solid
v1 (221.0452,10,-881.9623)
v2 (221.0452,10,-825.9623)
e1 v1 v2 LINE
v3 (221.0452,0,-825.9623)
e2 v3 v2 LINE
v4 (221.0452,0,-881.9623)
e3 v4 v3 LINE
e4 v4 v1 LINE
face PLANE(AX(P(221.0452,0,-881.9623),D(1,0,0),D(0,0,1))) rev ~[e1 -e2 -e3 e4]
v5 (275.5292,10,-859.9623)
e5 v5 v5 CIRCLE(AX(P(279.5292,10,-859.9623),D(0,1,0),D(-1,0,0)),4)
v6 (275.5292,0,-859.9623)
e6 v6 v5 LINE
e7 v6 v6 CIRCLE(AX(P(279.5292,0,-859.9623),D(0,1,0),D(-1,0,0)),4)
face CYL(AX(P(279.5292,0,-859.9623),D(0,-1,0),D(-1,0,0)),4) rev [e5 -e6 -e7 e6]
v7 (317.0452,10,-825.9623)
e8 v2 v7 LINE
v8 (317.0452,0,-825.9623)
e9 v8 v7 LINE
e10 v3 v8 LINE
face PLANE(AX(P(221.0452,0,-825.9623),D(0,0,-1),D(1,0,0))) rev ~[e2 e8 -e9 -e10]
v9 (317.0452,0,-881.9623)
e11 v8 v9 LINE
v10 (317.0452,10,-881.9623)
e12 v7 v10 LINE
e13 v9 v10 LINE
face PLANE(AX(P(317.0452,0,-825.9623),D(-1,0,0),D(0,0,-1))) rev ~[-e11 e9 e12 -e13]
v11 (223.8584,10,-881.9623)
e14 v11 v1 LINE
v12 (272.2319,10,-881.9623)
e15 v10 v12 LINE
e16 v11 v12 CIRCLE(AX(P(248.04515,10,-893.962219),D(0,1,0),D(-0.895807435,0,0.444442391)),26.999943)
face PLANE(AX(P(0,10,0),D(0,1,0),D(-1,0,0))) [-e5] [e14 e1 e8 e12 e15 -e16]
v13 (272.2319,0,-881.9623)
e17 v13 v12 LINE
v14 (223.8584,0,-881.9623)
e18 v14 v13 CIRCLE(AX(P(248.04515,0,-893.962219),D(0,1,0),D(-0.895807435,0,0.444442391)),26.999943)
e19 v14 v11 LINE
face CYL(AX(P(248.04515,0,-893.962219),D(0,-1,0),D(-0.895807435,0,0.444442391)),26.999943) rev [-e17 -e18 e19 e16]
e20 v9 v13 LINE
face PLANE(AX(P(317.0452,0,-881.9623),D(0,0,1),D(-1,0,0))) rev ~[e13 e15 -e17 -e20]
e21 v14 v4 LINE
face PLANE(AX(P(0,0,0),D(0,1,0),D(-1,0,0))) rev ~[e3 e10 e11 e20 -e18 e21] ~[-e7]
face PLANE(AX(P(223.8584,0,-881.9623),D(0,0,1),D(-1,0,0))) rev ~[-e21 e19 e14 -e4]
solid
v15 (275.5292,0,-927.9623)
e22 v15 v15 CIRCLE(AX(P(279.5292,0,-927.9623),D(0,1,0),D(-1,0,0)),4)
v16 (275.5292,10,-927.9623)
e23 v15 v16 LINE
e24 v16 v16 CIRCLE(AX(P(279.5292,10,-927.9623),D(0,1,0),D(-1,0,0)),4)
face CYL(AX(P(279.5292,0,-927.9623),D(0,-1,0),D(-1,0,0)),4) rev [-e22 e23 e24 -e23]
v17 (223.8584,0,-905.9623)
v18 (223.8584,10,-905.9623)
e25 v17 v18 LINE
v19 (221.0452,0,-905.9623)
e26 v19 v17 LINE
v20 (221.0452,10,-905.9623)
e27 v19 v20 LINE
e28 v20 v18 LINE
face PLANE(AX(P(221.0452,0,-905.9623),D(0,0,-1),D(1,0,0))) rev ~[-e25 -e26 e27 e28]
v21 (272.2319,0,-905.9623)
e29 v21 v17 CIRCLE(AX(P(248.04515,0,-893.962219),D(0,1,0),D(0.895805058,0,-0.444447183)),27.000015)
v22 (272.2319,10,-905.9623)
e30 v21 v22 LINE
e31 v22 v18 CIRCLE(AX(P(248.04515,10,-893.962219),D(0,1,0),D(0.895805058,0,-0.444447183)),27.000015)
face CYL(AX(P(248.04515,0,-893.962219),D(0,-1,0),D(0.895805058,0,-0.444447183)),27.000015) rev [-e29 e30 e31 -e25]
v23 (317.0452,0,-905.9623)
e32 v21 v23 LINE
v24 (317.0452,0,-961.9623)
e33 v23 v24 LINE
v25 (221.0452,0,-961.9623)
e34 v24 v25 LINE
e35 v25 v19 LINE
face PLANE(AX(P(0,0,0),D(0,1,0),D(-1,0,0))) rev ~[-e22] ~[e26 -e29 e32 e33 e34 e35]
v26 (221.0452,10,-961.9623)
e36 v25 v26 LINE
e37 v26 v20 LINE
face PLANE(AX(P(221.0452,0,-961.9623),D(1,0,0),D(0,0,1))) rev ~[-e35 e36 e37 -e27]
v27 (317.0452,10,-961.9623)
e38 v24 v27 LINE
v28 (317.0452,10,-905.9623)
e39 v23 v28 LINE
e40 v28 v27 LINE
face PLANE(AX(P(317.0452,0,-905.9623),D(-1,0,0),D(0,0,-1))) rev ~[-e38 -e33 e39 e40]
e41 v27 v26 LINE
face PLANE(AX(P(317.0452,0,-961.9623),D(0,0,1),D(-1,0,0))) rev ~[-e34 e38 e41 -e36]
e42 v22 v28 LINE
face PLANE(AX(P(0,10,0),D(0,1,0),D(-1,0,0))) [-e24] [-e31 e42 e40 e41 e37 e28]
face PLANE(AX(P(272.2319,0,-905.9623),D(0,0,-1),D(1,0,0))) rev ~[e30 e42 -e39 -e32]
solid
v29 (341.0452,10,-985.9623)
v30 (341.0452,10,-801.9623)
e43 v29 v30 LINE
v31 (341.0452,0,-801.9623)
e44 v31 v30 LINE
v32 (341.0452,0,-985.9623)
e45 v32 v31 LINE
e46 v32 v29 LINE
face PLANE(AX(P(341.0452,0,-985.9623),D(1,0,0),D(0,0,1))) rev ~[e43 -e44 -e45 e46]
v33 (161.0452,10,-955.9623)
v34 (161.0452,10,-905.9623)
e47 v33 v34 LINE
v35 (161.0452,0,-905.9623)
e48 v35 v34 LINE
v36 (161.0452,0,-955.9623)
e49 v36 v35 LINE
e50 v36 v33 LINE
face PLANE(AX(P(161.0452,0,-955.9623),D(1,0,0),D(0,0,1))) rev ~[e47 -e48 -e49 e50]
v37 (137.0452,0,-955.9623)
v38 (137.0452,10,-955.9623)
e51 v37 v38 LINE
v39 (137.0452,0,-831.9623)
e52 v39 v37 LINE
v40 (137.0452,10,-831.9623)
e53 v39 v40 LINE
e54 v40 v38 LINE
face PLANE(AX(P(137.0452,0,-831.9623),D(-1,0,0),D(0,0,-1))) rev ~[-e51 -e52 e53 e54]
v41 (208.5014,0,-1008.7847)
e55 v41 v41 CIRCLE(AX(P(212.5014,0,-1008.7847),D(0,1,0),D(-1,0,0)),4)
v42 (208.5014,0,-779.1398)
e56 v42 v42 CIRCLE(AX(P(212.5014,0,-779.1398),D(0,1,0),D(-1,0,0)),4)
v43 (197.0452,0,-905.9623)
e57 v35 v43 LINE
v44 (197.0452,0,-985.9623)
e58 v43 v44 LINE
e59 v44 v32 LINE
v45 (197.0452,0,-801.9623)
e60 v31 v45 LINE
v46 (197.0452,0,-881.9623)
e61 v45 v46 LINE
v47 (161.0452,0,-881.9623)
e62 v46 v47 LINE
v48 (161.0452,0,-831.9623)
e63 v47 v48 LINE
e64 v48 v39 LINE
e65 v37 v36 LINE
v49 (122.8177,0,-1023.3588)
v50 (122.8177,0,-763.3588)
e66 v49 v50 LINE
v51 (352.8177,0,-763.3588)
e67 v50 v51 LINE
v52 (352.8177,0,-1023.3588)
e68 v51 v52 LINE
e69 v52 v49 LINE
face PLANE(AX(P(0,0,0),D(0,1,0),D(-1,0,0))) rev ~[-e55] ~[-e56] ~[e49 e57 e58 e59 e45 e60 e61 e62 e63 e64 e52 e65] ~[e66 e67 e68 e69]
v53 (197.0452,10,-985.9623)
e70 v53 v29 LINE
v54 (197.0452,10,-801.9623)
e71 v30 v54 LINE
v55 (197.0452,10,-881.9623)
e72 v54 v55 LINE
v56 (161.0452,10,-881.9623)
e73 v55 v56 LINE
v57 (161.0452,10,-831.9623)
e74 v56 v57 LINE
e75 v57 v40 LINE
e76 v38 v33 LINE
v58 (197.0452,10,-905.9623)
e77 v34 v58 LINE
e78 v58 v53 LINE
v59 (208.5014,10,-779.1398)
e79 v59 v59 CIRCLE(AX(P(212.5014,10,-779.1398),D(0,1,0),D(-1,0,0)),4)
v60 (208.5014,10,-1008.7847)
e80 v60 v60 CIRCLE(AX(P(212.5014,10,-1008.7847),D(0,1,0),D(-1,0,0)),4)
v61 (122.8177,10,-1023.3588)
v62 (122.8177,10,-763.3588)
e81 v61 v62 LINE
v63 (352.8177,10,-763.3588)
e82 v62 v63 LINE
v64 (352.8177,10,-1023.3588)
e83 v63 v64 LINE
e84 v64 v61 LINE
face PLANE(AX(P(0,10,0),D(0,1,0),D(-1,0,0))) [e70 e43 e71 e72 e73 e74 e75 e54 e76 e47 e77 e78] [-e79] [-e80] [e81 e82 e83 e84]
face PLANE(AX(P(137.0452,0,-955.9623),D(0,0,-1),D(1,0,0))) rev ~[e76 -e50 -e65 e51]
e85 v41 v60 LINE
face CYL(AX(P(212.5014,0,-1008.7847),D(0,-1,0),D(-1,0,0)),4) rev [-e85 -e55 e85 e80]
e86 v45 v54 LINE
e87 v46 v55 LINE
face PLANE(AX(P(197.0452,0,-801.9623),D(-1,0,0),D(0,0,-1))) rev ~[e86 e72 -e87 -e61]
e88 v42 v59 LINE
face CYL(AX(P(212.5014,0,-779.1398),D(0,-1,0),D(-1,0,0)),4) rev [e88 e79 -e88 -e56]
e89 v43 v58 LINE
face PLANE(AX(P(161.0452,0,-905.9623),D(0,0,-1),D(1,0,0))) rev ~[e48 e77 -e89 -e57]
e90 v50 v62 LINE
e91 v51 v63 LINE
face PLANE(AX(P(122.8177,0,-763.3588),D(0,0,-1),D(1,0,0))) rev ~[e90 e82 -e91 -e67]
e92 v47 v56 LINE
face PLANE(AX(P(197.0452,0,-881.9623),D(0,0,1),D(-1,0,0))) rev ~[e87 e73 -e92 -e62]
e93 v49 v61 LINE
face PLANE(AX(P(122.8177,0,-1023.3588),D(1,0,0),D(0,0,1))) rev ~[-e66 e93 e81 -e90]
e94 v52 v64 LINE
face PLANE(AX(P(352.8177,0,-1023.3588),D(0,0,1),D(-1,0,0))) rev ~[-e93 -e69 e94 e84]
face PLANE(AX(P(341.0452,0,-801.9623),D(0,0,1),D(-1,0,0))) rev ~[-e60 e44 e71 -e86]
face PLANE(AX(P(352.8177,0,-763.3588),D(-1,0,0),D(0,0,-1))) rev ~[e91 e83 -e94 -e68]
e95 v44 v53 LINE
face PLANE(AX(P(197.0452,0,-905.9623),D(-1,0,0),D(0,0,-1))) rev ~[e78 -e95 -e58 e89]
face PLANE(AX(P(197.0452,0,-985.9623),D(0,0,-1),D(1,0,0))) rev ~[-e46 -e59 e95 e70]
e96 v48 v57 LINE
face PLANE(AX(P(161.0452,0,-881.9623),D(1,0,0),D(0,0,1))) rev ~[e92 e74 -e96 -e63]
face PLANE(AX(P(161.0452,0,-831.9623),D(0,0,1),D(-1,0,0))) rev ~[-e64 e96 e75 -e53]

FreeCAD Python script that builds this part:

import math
import FreeCAD as App
import Part
import Sketcher
from FreeCAD import Vector
Q = App.Units.Quantity


def add_polygon(sketch, points):
    """Adds a closed chain of lines whose ends are joined by coincident constraints."""
    first, n = sketch.GeometryCount, len(points)
    for a, b in zip(points, points[1:] + points[:1]):
        sketch.addGeometry(Part.LineSegment(App.Vector(*a, 0), App.Vector(*b, 0)), False)
    for i in range(n):
        sketch.addConstraint(Sketcher.Constraint("Coincident", first + i, 2, first + (i + 1) % n, 1))

doc = App.newDocument("Part")
body = doc.addObject("PartDesign::Body", "Body")
body.AllowCompound = True

sketch1 = body.newObject("Sketcher::SketchObject", "Sketch")
sketch1.AttachmentSupport = (doc.getObject("XZ_Plane"), [""])
sketch1.MapMode = "FlatFace"
add_polygon(sketch1, [(122.8, -763.4), (352.8, -763.4), (352.8, -1023.4), (122.8, -1023.4)])
add_polygon(sketch1, [(341, -802), (197, -802), (197, -882), (161, -882), (161, -832), (137, -832), (137, -956), (161, -956), (161, -906), (197, -906), (197, -986), (341, -986)])
sketch1.addGeometry(Part.Circle(Vector(212.5, -1008.8, 0), Vector(0, 0, 1), 4), False)
sketch1.addGeometry(Part.Circle(Vector(212.5, -779.1, 0), Vector(0, 0, 1), 4), False)
sketch1.addGeometry(Part.ArcOfCircle(Part.Circle(Vector(248, -894, 0), Vector(0, 0, 1), 27), math.radians(-154), math.radians(-26)), False)
sketch1.addGeometry(Part.LineSegment(Vector(272.2, -906, 0), Vector(317, -906, 0)), False)
sketch1.addGeometry(Part.LineSegment(Vector(317, -906, 0), Vector(317, -962, 0)), False)
sketch1.addGeometry(Part.LineSegment(Vector(317, -962, 0), Vector(221, -962, 0)), False)
sketch1.addGeometry(Part.LineSegment(Vector(221, -962, 0), Vector(221, -906, 0)), False)
sketch1.addGeometry(Part.LineSegment(Vector(221, -906, 0), Vector(223.9, -906, 0)), False)
sketch1.addGeometry(Part.Circle(Vector(279.5, -928, 0), Vector(0, 0, 1), 4), False)
sketch1.addGeometry(Part.ArcOfCircle(Part.Circle(Vector(248, -894, 0), Vector(0, 0, 1), 27), math.radians(26), math.radians(154)), False)
sketch1.addGeometry(Part.LineSegment(Vector(223.9, -882, 0), Vector(221, -882, 0)), False)
sketch1.addGeometry(Part.LineSegment(Vector(221, -882, 0), Vector(221, -826, 0)), False)
sketch1.addGeometry(Part.LineSegment(Vector(221, -826, 0), Vector(317, -826, 0)), False)
sketch1.addGeometry(Part.LineSegment(Vector(317, -826, 0), Vector(317, -882, 0)), False)
sketch1.addGeometry(Part.LineSegment(Vector(317, -882, 0), Vector(272.2, -882, 0)), False)
sketch1.addGeometry(Part.Circle(Vector(279.5, -860, 0), Vector(0, 0, 1), 4), False)
sketch1.addConstraint(Sketcher.Constraint("Coincident", 18, 2, 19, 1))
sketch1.addConstraint(Sketcher.Constraint("Coincident", 19, 2, 20, 1))
sketch1.addConstraint(Sketcher.Constraint("Coincident", 20, 2, 21, 1))
sketch1.addConstraint(Sketcher.Constraint("Coincident", 21, 2, 22, 1))
sketch1.addConstraint(Sketcher.Constraint("Coincident", 22, 2, 23, 1))
sketch1.addConstraint(Sketcher.Constraint("Coincident", 23, 2, 18, 1))
sketch1.addConstraint(Sketcher.Constraint("Coincident", 25, 2, 26, 1))
sketch1.addConstraint(Sketcher.Constraint("Coincident", 26, 2, 27, 1))
sketch1.addConstraint(Sketcher.Constraint("Coincident", 27, 2, 28, 1))
sketch1.addConstraint(Sketcher.Constraint("Coincident", 28, 2, 29, 1))
sketch1.addConstraint(Sketcher.Constraint("Coincident", 29, 2, 30, 1))
sketch1.addConstraint(Sketcher.Constraint("Coincident", 30, 2, 25, 1))
sketch1.addConstraint(Sketcher.Constraint("Horizontal", 0))
sketch1.addConstraint(Sketcher.Constraint("Vertical", 1))
sketch1.addConstraint(Sketcher.Constraint("Horizontal", 2))
sketch1.addConstraint(Sketcher.Constraint("Vertical", 3))
sketch1.addConstraint(Sketcher.Constraint("Horizontal", 4))
sketch1.addConstraint(Sketcher.Constraint("Vertical", 5))
sketch1.addConstraint(Sketcher.Constraint("Horizontal", 6))
sketch1.addConstraint(Sketcher.Constraint("Vertical", 7))
sketch1.addConstraint(Sketcher.Constraint("Horizontal", 8))
sketch1.addConstraint(Sketcher.Constraint("Vertical", 9))
sketch1.addConstraint(Sketcher.Constraint("Horizontal", 10))
sketch1.addConstraint(Sketcher.Constraint("Vertical", 11))
sketch1.addConstraint(Sketcher.Constraint("Horizontal", 12))
sketch1.addConstraint(Sketcher.Constraint("Vertical", 13))
sketch1.addConstraint(Sketcher.Constraint("Horizontal", 14))
sketch1.addConstraint(Sketcher.Constraint("Vertical", 15))
sketch1.addConstraint(Sketcher.Constraint("Horizontal", 19))
sketch1.addConstraint(Sketcher.Constraint("Vertical", 20))
sketch1.addConstraint(Sketcher.Constraint("Horizontal", 21))
sketch1.addConstraint(Sketcher.Constraint("Vertical", 22))
sketch1.addConstraint(Sketcher.Constraint("Horizontal", 23))
sketch1.addConstraint(Sketcher.Constraint("Horizontal", 26))
sketch1.addConstraint(Sketcher.Constraint("Vertical", 27))
sketch1.addConstraint(Sketcher.Constraint("Horizontal", 28))
sketch1.addConstraint(Sketcher.Constraint("Vertical", 29))
sketch1.addConstraint(Sketcher.Constraint("Horizontal", 30))
sketch1.addConstraint(Sketcher.Constraint("Coincident", 25, 3, 18, 3))
sketch1.addConstraint(Sketcher.Constraint("Equal", 16, 17))
sketch1.addConstraint(Sketcher.Constraint("Equal", 17, 24))
sketch1.addConstraint(Sketcher.Constraint("Equal", 18, 25))
sketch1.addConstraint(Sketcher.Constraint("Equal", 24, 31))
sketch1.addConstraint(Sketcher.Constraint("Horizontal", 12, 2, 18, 2))
sketch1.addConstraint(Sketcher.Constraint("Horizontal", 19, 2, 22, 2))
sketch1.addConstraint(Sketcher.Constraint("Horizontal", 6, 2, 25, 2))
sketch1.addConstraint(Sketcher.Constraint("Horizontal", 26, 2, 29, 2))
sketch1.addConstraint(Sketcher.Constraint("Vertical", 16, 3, 17, 3))
sketch1.addConstraint(Sketcher.Constraint("Vertical", 24, 3, 31, 3))
sketch1.addConstraint(Sketcher.Constraint("Vertical", 7, 2, 10, 2))
sketch1.addConstraint(Sketcher.Constraint("Vertical", 5, 2, 12, 2))
sketch1.addConstraint(Sketcher.Constraint("Vertical", 23, 2, 25, 2))
sketch1.addConstraint(Sketcher.Constraint("Vertical", 22, 2, 26, 2))
sketch1.addConstraint(Sketcher.Constraint("Vertical", 20, 2, 28, 2))
sketch1.addConstraint(Sketcher.Constraint("Equal", 7, 11))
sketch1.addConstraint(Sketcher.Constraint("Equal", 5, 13))
sketch1.addConstraint(Sketcher.Constraint("Equal", 22, 27))
sketch1.addConstraint(Sketcher.Constraint("Diameter", 16, Q("8 mm")))
sketch1.addConstraint(Sketcher.Constraint("Radius", 18, Q("27 mm")))
sketch1.addConstraint(Sketcher.Constraint("DistanceX", 0, 1, 0, 2, Q("230 mm")))
sketch1.addConstraint(Sketcher.Constraint("DistanceX", 4, 2, 4, 1, Q("144 mm")))
sketch1.addConstraint(Sketcher.Constraint("DistanceX", 6, 2, 6, 1, Q("36 mm")))
sketch1.addConstraint(Sketcher.Constraint("DistanceX", 8, 2, 8, 1, Q("24 mm")))
sketch1.addConstraint(Sketcher.Constraint("DistanceX", 21, 2, 21, 1, Q("96 mm")))
sketch1.addConstraint(Sketcher.Constraint("DistanceY", 1, 2, 1, 1, Q("260 mm")))
sketch1.addConstraint(Sketcher.Constraint("DistanceY", 5, 2, 5, 1, Q("80 mm")))
sketch1.addConstraint(Sketcher.Constraint("DistanceY", 7, 1, 7, 2, Q("50 mm")))
sketch1.addConstraint(Sketcher.Constraint("DistanceY", 9, 2, 9, 1, Q("124 mm")))
sketch1.addConstraint(Sketcher.Constraint("DistanceY", 20, 2, 20, 1, Q("56 mm")))
sketch1.addConstraint(Sketcher.Constraint("DistanceY", 24, 3, 18, 3, Q("34 mm")))
sketch1.addConstraint(Sketcher.Constraint("DistanceY", 18, 3, 31, 3, Q("34 mm")))
sketch1.addConstraint(Sketcher.Constraint("DistanceX", 4, 2, 18, 3, Q("51 mm")))
sketch1.addConstraint(Sketcher.Constraint("DistanceX", 18, 3, 19, 2, Q("69 mm")))
sketch1.addConstraint(Sketcher.Constraint("DistanceX", -1, 1, 18, 2, Q("272.232 mm")))
sketch1.addConstraint(Sketcher.Constraint("DistanceY", 16, 3, 17, 3, Q("229.645 mm")))
sketch1.addConstraint(Sketcher.Constraint("DistanceX", 18, 3, 24, 3, Q("31.484 mm")))
sketch1.addConstraint(Sketcher.Constraint("DistanceY", 17, 3, 0, 2, Q("15.781 mm")))
sketch1.addConstraint(Sketcher.Constraint("DistanceX", -1, 1, 16, 3, Q("212.5014 mm")))
sketch1.addConstraint(Sketcher.Constraint("DistanceY", 16, 3, -1, 1, Q("1008.7847 mm")))
sketch1.addConstraint(Sketcher.Constraint("DistanceY", 18, 3, -1, 1, Q("893.9623 mm")))
sketch1.addConstraint(Sketcher.Constraint("DistanceX", -1, 1, 0, 2, Q("352.8177 mm")))
pad1 = body.newObject("PartDesign::Pad", "Pad")
pad1.Profile = sketch1
pad1.Length = 10
pad1.Reversed = True

doc.recompute()
